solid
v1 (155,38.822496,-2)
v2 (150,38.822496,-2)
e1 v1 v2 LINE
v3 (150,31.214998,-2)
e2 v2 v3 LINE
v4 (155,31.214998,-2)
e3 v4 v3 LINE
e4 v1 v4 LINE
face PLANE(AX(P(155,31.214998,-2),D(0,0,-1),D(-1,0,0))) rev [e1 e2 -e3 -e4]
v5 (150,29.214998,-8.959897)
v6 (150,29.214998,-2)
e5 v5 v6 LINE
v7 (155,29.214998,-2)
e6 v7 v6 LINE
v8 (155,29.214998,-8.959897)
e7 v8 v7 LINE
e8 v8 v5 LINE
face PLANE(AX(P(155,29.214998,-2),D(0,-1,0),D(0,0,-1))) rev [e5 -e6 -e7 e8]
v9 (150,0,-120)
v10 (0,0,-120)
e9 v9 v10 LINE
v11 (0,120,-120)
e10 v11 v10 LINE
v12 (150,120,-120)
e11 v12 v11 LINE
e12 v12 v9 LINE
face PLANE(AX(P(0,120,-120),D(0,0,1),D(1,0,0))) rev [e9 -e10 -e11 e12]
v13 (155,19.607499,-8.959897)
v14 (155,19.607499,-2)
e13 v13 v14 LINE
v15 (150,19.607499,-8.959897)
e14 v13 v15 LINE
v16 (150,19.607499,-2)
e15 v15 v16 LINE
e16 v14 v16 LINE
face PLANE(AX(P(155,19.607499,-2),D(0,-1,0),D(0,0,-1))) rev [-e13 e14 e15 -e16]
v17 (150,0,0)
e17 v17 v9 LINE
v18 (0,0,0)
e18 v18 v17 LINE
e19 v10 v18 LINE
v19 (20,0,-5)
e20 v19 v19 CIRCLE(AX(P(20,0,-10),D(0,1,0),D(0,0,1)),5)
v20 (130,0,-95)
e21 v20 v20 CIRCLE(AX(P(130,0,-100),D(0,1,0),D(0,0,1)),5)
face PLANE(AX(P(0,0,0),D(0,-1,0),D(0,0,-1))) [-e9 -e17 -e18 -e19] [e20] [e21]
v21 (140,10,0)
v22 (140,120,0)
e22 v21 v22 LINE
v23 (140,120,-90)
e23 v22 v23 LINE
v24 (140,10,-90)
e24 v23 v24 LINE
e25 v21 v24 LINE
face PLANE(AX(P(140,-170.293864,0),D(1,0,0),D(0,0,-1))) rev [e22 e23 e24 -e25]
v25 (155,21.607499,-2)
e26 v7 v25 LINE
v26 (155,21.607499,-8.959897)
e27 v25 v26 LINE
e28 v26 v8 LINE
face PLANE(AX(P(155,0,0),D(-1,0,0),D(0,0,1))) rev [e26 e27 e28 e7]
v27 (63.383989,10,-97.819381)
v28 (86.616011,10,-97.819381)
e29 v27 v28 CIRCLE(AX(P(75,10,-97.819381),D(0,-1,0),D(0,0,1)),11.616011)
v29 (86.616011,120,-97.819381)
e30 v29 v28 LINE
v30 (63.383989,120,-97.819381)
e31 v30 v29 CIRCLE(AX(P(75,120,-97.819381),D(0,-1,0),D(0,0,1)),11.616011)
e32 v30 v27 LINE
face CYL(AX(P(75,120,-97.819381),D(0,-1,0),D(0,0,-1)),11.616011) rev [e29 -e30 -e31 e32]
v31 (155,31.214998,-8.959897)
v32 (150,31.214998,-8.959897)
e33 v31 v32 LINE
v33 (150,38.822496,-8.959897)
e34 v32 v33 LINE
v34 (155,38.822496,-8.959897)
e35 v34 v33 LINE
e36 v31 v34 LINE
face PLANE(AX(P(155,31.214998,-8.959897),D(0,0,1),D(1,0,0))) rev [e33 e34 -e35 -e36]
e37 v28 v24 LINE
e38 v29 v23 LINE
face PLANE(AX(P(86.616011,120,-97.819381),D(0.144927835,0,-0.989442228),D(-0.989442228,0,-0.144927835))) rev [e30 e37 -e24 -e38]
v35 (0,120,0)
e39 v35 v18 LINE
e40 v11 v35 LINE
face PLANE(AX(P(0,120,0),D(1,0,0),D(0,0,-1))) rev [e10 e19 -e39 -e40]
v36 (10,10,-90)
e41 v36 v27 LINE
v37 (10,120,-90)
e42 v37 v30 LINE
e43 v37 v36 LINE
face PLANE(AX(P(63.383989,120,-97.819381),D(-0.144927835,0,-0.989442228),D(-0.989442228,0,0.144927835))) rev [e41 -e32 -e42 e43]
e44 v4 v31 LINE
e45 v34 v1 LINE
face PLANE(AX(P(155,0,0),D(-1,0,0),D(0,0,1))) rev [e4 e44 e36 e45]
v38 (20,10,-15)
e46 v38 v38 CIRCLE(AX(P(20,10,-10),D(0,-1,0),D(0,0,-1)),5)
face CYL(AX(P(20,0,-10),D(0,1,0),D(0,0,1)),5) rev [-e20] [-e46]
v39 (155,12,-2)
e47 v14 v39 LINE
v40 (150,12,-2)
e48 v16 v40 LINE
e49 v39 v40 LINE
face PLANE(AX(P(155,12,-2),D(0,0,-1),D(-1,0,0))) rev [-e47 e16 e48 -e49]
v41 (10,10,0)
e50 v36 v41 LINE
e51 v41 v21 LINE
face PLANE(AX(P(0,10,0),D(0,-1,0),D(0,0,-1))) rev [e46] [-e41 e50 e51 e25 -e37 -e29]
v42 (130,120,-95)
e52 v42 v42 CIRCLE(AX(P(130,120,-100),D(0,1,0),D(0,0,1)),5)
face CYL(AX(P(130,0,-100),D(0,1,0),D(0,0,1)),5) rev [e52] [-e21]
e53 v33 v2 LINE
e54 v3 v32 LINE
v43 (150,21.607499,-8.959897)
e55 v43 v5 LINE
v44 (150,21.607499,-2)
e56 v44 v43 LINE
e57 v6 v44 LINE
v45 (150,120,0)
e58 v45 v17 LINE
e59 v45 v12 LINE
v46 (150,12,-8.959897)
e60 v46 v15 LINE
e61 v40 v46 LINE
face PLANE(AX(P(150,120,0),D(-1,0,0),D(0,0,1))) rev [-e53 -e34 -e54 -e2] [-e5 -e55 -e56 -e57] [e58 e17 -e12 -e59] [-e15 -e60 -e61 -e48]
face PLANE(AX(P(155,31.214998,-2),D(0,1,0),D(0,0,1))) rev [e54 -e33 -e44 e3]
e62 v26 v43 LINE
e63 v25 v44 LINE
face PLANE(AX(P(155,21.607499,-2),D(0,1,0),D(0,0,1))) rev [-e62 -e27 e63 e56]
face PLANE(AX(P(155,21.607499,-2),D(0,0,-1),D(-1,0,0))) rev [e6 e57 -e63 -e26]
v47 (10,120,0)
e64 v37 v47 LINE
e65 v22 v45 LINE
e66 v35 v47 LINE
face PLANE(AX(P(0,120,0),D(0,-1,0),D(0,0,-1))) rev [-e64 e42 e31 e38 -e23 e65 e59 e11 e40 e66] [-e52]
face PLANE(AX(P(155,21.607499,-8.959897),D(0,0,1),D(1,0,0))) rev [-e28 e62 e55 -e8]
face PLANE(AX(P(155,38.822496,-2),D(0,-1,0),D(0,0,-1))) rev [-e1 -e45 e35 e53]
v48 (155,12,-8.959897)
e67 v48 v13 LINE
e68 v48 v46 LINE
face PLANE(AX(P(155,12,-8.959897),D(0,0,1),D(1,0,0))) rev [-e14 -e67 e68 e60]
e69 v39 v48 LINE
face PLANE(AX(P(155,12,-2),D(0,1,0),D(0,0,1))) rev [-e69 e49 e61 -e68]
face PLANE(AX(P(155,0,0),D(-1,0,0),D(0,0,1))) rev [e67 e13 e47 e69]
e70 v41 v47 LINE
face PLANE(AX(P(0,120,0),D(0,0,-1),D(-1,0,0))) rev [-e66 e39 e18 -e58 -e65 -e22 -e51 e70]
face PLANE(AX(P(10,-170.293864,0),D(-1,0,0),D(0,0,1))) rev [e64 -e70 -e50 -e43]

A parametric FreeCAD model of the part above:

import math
import FreeCAD as App
import Part
import Sketcher
from FreeCAD import Vector
Q = App.Units.Quantity


def add_polygon(sketch, points):
    """Adds a closed chain of lines whose ends are joined by coincident constraints."""
    first, n = sketch.GeometryCount, len(points)
    for a, b in zip(points, points[1:] + points[:1]):
        sketch.addGeometry(Part.LineSegment(App.Vector(*a, 0), App.Vector(*b, 0)), False)
    for i in range(n):
        sketch.addConstraint(Sketcher.Constraint("Coincident", first + i, 2, first + (i + 1) % n, 1))

doc = App.newDocument("Part")
body = doc.addObject("PartDesign::Body", "Body")

sketch1 = body.newObject("Sketcher::SketchObject", "Sketch")
sketch1.AttachmentSupport = (doc.getObject("XZ_Plane"), [""])
sketch1.MapMode = "FlatFace"
add_polygon(sketch1, [(0, -120), (0, 0), (150, 0), (150, -120)])
sketch1.addConstraint([
    Sketcher.Constraint("Vertical", 0),
    Sketcher.Constraint("Horizontal", 1),
    Sketcher.Constraint("Vertical", 2),
    Sketcher.Constraint("Horizontal", 3),
    Sketcher.Constraint("Coincident", 0, 2, -1, 1),
    Sketcher.Constraint("DistanceX", 1, 1, 1, 2, Q("150 mm")),
    Sketcher.Constraint("DistanceY", 0, 1, 0, 2, Q("120 mm")),
])
pad1 = body.newObject("PartDesign::Pad", "Pad")
pad1.Profile = sketch1
pad1.Length = 120
pad1.Reversed = True

sketch2 = body.newObject("Sketcher::SketchObject", "Sketch001")
sketch2.AttachmentSupport = (doc.getObject("XZ_Plane"), [""])
sketch2.MapMode = "FlatFace"
sketch2.AttachmentOffset = App.Placement(Vector(0, 0, -120), App.Rotation())
add_polygon(sketch2, [(10, -110), (10, 0), (140, 0), (140, -110)])
sketch2.addConstraint([
    Sketcher.Constraint("Vertical", 0),
    Sketcher.Constraint("Horizontal", 1),
    Sketcher.Constraint("Vertical", 2),
    Sketcher.Constraint("Horizontal", 3),
    Sketcher.Constraint("PointOnObject", 0, 2, -1),
    Sketcher.Constraint("DistanceX", 1, 1, 1, 2, Q("130 mm")),
    Sketcher.Constraint("DistanceY", 0, 1, 0, 2, Q("110 mm")),
    Sketcher.Constraint("DistanceX", -1, 1, 0, 2, Q("10 mm")),
])
pocket1 = body.newObject("PartDesign::Pocket", "Pocket")
pocket1.Profile = sketch2
pocket1.Length = 110
pocket1.Reversed = True

sketch3 = body.newObject("Sketcher::SketchObject", "Sketch002")
sketch3.AttachmentSupport = (doc.getObject("XZ_Plane"), [""])
sketch3.MapMode = "FlatFace"
sketch3.AttachmentOffset = App.Placement(Vector(0, 0, -10), App.Rotation())
sketch3.addGeometry([
    Part.LineSegment(Vector(10, -90, 0), Vector(63.383989, -97.819381, 0)),
    Part.ArcOfCircle(Part.Circle(Vector(75, -97.819381, 0), Vector(0, 0, 1), 11.616011), math.radians(180), math.radians(360)),
    Part.LineSegment(Vector(86.616011, -97.819381, 0), Vector(140, -90, 0)),
    Part.LineSegment(Vector(140, -90, 0), Vector(140, -110, 0)),
    Part.LineSegment(Vector(140, -110, 0), Vector(10, -110, 0)),
    Part.LineSegment(Vector(10, -110, 0), Vector(10, -90, 0)),
], False)
sketch3.addConstraint([
    Sketcher.Constraint("Coincident", 0, 2, 1, 1),
    Sketcher.Constraint("Coincident", 1, 2, 2, 1),
    Sketcher.Constraint("Coincident", 2, 2, 3, 1),
    Sketcher.Constraint("Coincident", 3, 2, 4, 1),
    Sketcher.Constraint("Coincident", 4, 2, 5, 1),
    Sketcher.Constraint("Coincident", 5, 2, 0, 1),
    Sketcher.Constraint("Vertical", 3),
    Sketcher.Constraint("Horizontal", 4),
    Sketcher.Constraint("Vertical", 5),
    Sketcher.Constraint("Horizontal", 1, 3, 0, 2),
    Sketcher.Constraint("Horizontal", 0, 2, 1, 2),
    Sketcher.Constraint("Horizontal", 2, 2, 5, 2),
    Sketcher.Constraint("Equal", 0, 2),
    Sketcher.Constraint("DistanceX", 4, 2, 4, 1, Q("130 mm")),
    Sketcher.Constraint("DistanceY", 3, 2, 3, 1, Q("20 mm")),
    Sketcher.Constraint("DistanceX", -1, 1, 1, 3, Q("75 mm")),
    Sketcher.Constraint("DistanceY", 2, 2, -1, 1, Q("90 mm")),
    Sketcher.Constraint("Radius", 1, Q("11.616011 mm")),
    Sketcher.Constraint("Distance", 0, Q("53.95362 mm")),
])
pad2 = body.newObject("PartDesign::Pad", "Pad001")
pad2.Profile = sketch3
pad2.Length = 110
pad2.Reversed = True

sketch4 = body.newObject("Sketcher::SketchObject", "Sketch003")
sketch4.AttachmentSupport = (doc.getObject("YZ_Plane"), [""])
sketch4.MapMode = "FlatFace"
sketch4.AttachmentOffset = App.Placement(Vector(0, 0, 150), App.Rotation())
add_polygon(sketch4, [(38.822496, -2), (31.214998, -2), (31.214998, -8.959897), (38.822496, -8.959897)])
add_polygon(sketch4, [(19.607499, -2), (12, -2), (12, -8.959897), (19.607499, -8.959897)])
add_polygon(sketch4, [(29.214998, -2), (21.607499, -2), (21.607499, -8.959897), (29.214998, -8.959897)])
sketch4.addConstraint([
    Sketcher.Constraint("Horizontal", 0),
    Sketcher.Constraint("Vertical", 1),
    Sketcher.Constraint("Horizontal", 2),
    Sketcher.Constraint("Vertical", 3),
    Sketcher.Constraint("Horizontal", 4),
    Sketcher.Constraint("Vertical", 5),
    Sketcher.Constraint("Horizontal", 6),
    Sketcher.Constraint("Vertical", 7),
    Sketcher.Constraint("Horizontal", 8),
    Sketcher.Constraint("Vertical", 9),
    Sketcher.Constraint("Horizontal", 10),
    Sketcher.Constraint("Vertical", 11),
    Sketcher.Constraint("Horizontal", 3, 2, 4, 2),
    Sketcher.Constraint("Horizontal", 2, 2, 5, 2),
    Sketcher.Constraint("Horizontal", 7, 2, 8, 2),
    Sketcher.Constraint("Horizontal", 6, 2, 9, 2),
    Sketcher.Constraint("Equal", 2, 4),
    Sketcher.Constraint("Equal", 6, 8),
    Sketcher.Constraint("DistanceY", 0, 2, -1, 1, Q("2 mm")),
    Sketcher.Constraint("DistanceX", -1, 1, 4, 2, Q("12 mm")),
    Sketcher.Constraint("DistanceX", 7, 2, 8, 2, Q("2 mm")),
    Sketcher.Constraint("DistanceX", 10, 2, 1, 2, Q("2 mm")),
    Sketcher.Constraint("DistanceX", 0, 2, 0, 1, Q("7.607499 mm")),
    Sketcher.Constraint("DistanceY", 1, 2, 1, 1, Q("6.959897 mm")),
])
pad3 = body.newObject("PartDesign::Pad", "Pad002")
pad3.Profile = sketch4
pad3.Length = 5

sketch5 = body.newObject("Sketcher::SketchObject", "Sketch004")
sketch5.AttachmentSupport = (doc.getObject("XZ_Plane"), [""])
sketch5.MapMode = "FlatFace"
sketch5.AttachmentOffset = App.Placement(Vector(0, 0, -10), App.Rotation())
sketch5.addGeometry([
    Part.Circle(Vector(20, -10, 0), Vector(0, 0, 1), 5),
    Part.Circle(Vector(130, -100, 0), Vector(0, 0, 1), 5),
], False)
sketch5.addConstraint([
    Sketcher.Constraint("Equal", 0, 1),
    Sketcher.Constraint("Diameter", 0, Q("10 mm")),
    Sketcher.Constraint("DistanceX", -1, 1, 0, 3, Q("20 mm")),
    Sketcher.Constraint("DistanceY", 0, 3, -1, 1, Q("10 mm")),
    Sketcher.Constraint("DistanceX", -1, 1, 1, 3, Q("130 mm")),
    Sketcher.Constraint("DistanceY", 1, 3, -1, 1, Q("100 mm")),
])
pocket2 = body.newObject("PartDesign::Pocket", "Pocket001")
pocket2.Profile = sketch5
pocket2.Type = "ThroughAll"
pocket2.Midplane = True

doc.recompute()
